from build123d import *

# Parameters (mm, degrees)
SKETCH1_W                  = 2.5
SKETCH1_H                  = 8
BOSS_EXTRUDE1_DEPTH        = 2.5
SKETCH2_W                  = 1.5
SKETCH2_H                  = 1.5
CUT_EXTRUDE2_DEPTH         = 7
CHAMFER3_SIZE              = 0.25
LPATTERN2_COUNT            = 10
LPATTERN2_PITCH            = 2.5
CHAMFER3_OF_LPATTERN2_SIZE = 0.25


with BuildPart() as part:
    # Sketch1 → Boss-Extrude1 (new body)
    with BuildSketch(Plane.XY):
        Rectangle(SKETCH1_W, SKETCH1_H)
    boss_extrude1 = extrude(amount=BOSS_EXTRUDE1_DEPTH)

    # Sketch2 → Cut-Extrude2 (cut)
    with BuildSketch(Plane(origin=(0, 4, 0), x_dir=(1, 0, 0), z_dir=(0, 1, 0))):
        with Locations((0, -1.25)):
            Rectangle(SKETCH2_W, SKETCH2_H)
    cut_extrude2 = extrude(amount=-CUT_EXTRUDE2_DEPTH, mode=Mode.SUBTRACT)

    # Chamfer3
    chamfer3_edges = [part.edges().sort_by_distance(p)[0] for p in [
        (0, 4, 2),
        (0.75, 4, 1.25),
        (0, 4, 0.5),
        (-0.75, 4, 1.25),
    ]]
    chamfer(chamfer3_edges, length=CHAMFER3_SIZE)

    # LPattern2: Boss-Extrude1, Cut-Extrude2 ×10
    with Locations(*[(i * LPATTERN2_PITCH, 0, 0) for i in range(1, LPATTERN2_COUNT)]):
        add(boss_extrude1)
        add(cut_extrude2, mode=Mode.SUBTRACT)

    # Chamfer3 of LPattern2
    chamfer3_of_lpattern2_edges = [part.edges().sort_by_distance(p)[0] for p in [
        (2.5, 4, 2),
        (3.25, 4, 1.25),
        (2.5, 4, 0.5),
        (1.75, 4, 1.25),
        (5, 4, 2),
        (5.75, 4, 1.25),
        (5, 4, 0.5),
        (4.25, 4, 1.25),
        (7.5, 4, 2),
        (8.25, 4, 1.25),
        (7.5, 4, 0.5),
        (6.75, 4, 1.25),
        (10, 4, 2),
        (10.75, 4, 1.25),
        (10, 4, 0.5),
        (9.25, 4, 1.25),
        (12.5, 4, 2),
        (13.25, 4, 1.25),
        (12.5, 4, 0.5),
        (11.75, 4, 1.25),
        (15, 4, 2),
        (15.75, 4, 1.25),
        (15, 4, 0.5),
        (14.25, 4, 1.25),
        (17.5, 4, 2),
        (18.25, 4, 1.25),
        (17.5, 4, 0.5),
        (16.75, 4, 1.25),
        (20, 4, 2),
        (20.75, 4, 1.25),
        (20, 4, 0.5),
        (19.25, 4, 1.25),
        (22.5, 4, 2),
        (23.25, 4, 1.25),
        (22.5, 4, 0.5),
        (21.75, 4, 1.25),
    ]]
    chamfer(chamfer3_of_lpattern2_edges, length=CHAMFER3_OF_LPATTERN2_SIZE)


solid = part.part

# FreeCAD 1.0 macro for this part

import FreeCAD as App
import Part
import Sketcher
from FreeCAD import Vector
Q = App.Units.Quantity


def edges_at(feature, points):
    """Names of the edges that pass closest to the given points."""
    edges = feature.Shape.Edges
    near = lambda p: min(range(len(edges)), key=lambda i: edges[i].distToShape(Part.Vertex(*p))[0])
    return sorted({f"Edge{near(p) + 1}" for p in points})


def add_polygon(sketch, points):
    """Adds a closed chain of lines whose ends are joined by coincident constraints."""
    first, n = sketch.GeometryCount, len(points)
    for a, b in zip(points, points[1:] + points[:1]):
        sketch.addGeometry(Part.LineSegment(App.Vector(*a, 0), App.Vector(*b, 0)), False)
    for i in range(n):
        sketch.addConstraint(Sketcher.Constraint("Coincident", first + i, 2, first + (i + 1) % n, 1))

doc = App.newDocument("Part")
body = doc.addObject("PartDesign::Body", "Body")

# Sketch on XY plane
sketch1 = doc.addObject("Sketcher::SketchObject", "Sketch")
body.addObject(sketch1)
sketch1.AttachmentSupport = (doc.XY_Plane, [""])
sketch1.MapMode = "FlatFace"
add_polygon(sketch1, [(-1.2, 4), (-1.2, -4), (1.2, -4), (1.2, 4)])  # lines 0-3
sketch1.addConstraint(Sketcher.Constraint("Vertical", 0))
sketch1.addConstraint(Sketcher.Constraint("Horizontal", 1))
sketch1.addConstraint(Sketcher.Constraint("Vertical", 2))
sketch1.addConstraint(Sketcher.Constraint("Horizontal", 3))
sketch1.addConstraint(Sketcher.Constraint("Symmetric", 0, 2, 2, 2, -1, 1))
sketch1.addConstraint(Sketcher.Constraint("DistanceY", 0, 2, 0, 1, Q("8 mm")))
sketch1.addConstraint(Sketcher.Constraint("DistanceX", 1, 1, 1, 2, Q("2.5 mm")))
pad1 = doc.addObject("PartDesign::Pad", "Pad")
body.addObject(pad1)
pad1.Profile = sketch1
pad1.Length = 2.5

# Sketch on XZ plane
sketch2 = doc.addObject("Sketcher::SketchObject", "Sketch001")
body.addObject(sketch2)
sketch2.AttachmentSupport = (doc.XZ_Plane, [""])
sketch2.MapMode = "FlatFace"
sketch2.AttachmentOffset = App.Placement(Vector(0, 0, -4), App.Rotation())
add_polygon(sketch2, [(-0.8, 0.5), (-0.8, 2), (0.8, 2), (0.8, 0.5)])  # lines 0-3
sketch2.addConstraint(Sketcher.Constraint("Vertical", 0))
sketch2.addConstraint(Sketcher.Constraint("Horizontal", 1))
sketch2.addConstraint(Sketcher.Constraint("Vertical", 2))
sketch2.addConstraint(Sketcher.Constraint("Horizontal", 3))
sketch2.addConstraint(Sketcher.Constraint("Equal", 3, 0))
sketch2.addConstraint(Sketcher.Constraint("DistanceX", 1, 1, 1, 2, Q("1.5 mm")))
sketch2.addConstraint(Sketcher.Constraint("DistanceY", -1, 1, 0, 2, Q("2 mm")))
sketch2.addConstraint(Sketcher.Constraint("DistanceX", 0, 2, -1, 1, Q("0.75 mm")))
pocket1 = doc.addObject("PartDesign::Pocket", "Pocket")
body.addObject(pocket1)
pocket1.Profile = sketch2
pocket1.Length = 7
pocket1.Reversed = True
doc.recompute()

chamfer = doc.addObject("PartDesign::Chamfer", "Chamfer")
body.addObject(chamfer)
chamfer.Base = (pocket1, edges_at(pocket1, [
    (0, 4, 2),
    (0.75, 4, 1.25),
    (0, 4, 0.5),
    (-0.75, 4, 1.25),
]))
chamfer.Size = 0.25
doc.recompute()

linearpattern = doc.addObject("PartDesign::LinearPattern", "LinearPattern")
body.addObject(linearpattern)
linearpattern.Originals = [pad1, pocket1]
linearpattern.Direction = (doc.X_Axis, [""])
linearpattern.Mode = "offset"
linearpattern.Offset = 2.5
linearpattern.Occurrences = 10
body.Tip = linearpattern
doc.recompute()

chamfer2 = doc.addObject("PartDesign::Chamfer", "Chamfer001")
body.addObject(chamfer2)
chamfer2.Base = (linearpattern, edges_at(linearpattern, [
    (2.5, 4, 2),
    (3.25, 4, 1.25),
    (2.5, 4, 0.5),
    (1.75, 4, 1.25),
    (5, 4, 2),
    (5.75, 4, 1.25),
    (5, 4, 0.5),
    (4.25, 4, 1.25),
    (7.5, 4, 2),
    (8.25, 4, 1.25),
    (7.5, 4, 0.5),
    (6.75, 4, 1.25),
    (10, 4, 2),
    (10.75, 4, 1.25),
    (10, 4, 0.5),
    (9.25, 4, 1.25),
    (12.5, 4, 2),
    (13.25, 4, 1.25),
    (12.5, 4, 0.5),
    (11.75, 4, 1.25),
    (15, 4, 2),
    (15.75, 4, 1.25),
    (15, 4, 0.5),
    (14.25, 4, 1.25),
    (17.5, 4, 2),
    (18.25, 4, 1.25),
    (17.5, 4, 0.5),
    (16.75, 4, 1.25),
    (20, 4, 2),
    (20.75, 4, 1.25),
    (20, 4, 0.5),
    (19.25, 4, 1.25),
    (22.5, 4, 2),
    (23.25, 4, 1.25),
    (22.5, 4, 0.5),
    (21.75, 4, 1.25),
]))
chamfer2.Size = 0.25

doc.recompute()
